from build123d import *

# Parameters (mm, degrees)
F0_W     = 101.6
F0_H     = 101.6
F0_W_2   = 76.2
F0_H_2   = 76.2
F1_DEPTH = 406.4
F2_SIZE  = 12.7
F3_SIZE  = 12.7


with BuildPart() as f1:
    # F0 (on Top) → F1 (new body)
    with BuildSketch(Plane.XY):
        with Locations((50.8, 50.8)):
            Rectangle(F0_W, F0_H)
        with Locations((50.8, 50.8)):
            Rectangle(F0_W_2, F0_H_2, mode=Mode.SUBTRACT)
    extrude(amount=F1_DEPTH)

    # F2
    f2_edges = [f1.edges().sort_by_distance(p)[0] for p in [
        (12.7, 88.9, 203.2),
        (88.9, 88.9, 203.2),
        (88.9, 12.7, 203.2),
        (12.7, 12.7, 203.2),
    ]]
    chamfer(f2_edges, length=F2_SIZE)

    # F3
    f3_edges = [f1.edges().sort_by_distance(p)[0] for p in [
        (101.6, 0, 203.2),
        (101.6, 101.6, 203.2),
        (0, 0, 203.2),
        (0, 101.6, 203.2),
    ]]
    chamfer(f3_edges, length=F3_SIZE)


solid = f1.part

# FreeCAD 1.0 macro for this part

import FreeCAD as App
import Part
import Sketcher
from FreeCAD import Vector
Q = App.Units.Quantity


def edges_at(feature, points):
    """Names of the edges that pass closest to the given points."""
    edges = feature.Shape.Edges
    near = lambda p: min(range(len(edges)), key=lambda i: edges[i].distToShape(Part.Vertex(*p))[0])
    return sorted({f"Edge{near(p) + 1}" for p in points})

doc = App.newDocument("Part")
body = doc.addObject("PartDesign::Body", "Body")

sketch1 = body.newObject("Sketcher::SketchObject", "Sketch")
sketch1.AttachmentSupport = (doc.getObject("XY_Plane"), [""])
sketch1.MapMode = "FlatFace"
sketch1.addGeometry(Part.LineSegment(Vector(0, 102, 0), Vector(0, 0, 0)), False)
sketch1.addGeometry(Part.LineSegment(Vector(0, 0, 0), Vector(102, 0, 0)), False)
sketch1.addGeometry(Part.LineSegment(Vector(102, 0, 0), Vector(102, 102, 0)), False)
sketch1.addGeometry(Part.LineSegment(Vector(102, 102, 0), Vector(0, 102, 0)), False)
sketch1.addGeometry(Part.LineSegment(Vector(89, 13, 0), Vector(13, 13, 0)), False)
sketch1.addGeometry(Part.LineSegment(Vector(13, 13, 0), Vector(13, 89, 0)), False)
sketch1.addGeometry(Part.LineSegment(Vector(13, 89, 0), Vector(89, 89, 0)), False)
sketch1.addGeometry(Part.LineSegment(Vector(89, 89, 0), Vector(89, 13, 0)), False)
sketch1.addConstraint(Sketcher.Constraint("Coincident", 0, 2, 1, 1))
sketch1.addConstraint(Sketcher.Constraint("Coincident", 1, 2, 2, 1))
sketch1.addConstraint(Sketcher.Constraint("Coincident", 2, 2, 3, 1))
sketch1.addConstraint(Sketcher.Constraint("Coincident", 3, 2, 0, 1))
sketch1.addConstraint(Sketcher.Constraint("Coincident", 4, 2, 5, 1))
sketch1.addConstraint(Sketcher.Constraint("Coincident", 5, 2, 6, 1))
sketch1.addConstraint(Sketcher.Constraint("Coincident", 6, 2, 7, 1))
sketch1.addConstraint(Sketcher.Constraint("Coincident", 7, 2, 4, 1))
sketch1.addConstraint(Sketcher.Constraint("Vertical", 0))
sketch1.addConstraint(Sketcher.Constraint("Horizontal", 1))
sketch1.addConstraint(Sketcher.Constraint("Vertical", 2))
sketch1.addConstraint(Sketcher.Constraint("Horizontal", 3))
sketch1.addConstraint(Sketcher.Constraint("Horizontal", 4))
sketch1.addConstraint(Sketcher.Constraint("Vertical", 5))
sketch1.addConstraint(Sketcher.Constraint("Horizontal", 6))
sketch1.addConstraint(Sketcher.Constraint("Vertical", 7))
sketch1.addConstraint(Sketcher.Constraint("Coincident", 0, 2, -1, 1))
sketch1.addConstraint(Sketcher.Constraint("Equal", 3, 0))
sketch1.addConstraint(Sketcher.Constraint("Equal", 6, 5))
sketch1.addConstraint(Sketcher.Constraint("DistanceX", 1, 1, 1, 2, Q("4 in")))
sketch1.addConstraint(Sketcher.Constraint("DistanceX", 4, 2, 4, 1, Q("3 in")))
sketch1.addConstraint(Sketcher.Constraint("DistanceX", -1, 1, 4, 2, Q("0.5 in")))
sketch1.addConstraint(Sketcher.Constraint("DistanceY", -1, 1, 4, 2, Q("0.5 in")))
pad1 = body.newObject("PartDesign::Pad", "Pad")
pad1.Profile = sketch1
pad1.Length = Q("16 in")
doc.recompute()

chamfer = body.newObject("PartDesign::Chamfer", "Chamfer")
chamfer.Base = (pad1, edges_at(pad1, [
    (12.7, 88.9, 203.2),
    (88.9, 88.9, 203.2),
    (88.9, 12.7, 203.2),
    (12.7, 12.7, 203.2),
]))
chamfer.Size = Q("0.5 in")
doc.recompute()

chamfer2 = body.newObject("PartDesign::Chamfer", "Chamfer001")
chamfer2.Base = (chamfer, edges_at(chamfer, [
    (101.6, 0, 203.2),
    (101.6, 101.6, 203.2),
    (0, 0, 203.2),
    (0, 101.6, 203.2),
]))
chamfer2.Size = Q("0.5 in")

doc.recompute()
